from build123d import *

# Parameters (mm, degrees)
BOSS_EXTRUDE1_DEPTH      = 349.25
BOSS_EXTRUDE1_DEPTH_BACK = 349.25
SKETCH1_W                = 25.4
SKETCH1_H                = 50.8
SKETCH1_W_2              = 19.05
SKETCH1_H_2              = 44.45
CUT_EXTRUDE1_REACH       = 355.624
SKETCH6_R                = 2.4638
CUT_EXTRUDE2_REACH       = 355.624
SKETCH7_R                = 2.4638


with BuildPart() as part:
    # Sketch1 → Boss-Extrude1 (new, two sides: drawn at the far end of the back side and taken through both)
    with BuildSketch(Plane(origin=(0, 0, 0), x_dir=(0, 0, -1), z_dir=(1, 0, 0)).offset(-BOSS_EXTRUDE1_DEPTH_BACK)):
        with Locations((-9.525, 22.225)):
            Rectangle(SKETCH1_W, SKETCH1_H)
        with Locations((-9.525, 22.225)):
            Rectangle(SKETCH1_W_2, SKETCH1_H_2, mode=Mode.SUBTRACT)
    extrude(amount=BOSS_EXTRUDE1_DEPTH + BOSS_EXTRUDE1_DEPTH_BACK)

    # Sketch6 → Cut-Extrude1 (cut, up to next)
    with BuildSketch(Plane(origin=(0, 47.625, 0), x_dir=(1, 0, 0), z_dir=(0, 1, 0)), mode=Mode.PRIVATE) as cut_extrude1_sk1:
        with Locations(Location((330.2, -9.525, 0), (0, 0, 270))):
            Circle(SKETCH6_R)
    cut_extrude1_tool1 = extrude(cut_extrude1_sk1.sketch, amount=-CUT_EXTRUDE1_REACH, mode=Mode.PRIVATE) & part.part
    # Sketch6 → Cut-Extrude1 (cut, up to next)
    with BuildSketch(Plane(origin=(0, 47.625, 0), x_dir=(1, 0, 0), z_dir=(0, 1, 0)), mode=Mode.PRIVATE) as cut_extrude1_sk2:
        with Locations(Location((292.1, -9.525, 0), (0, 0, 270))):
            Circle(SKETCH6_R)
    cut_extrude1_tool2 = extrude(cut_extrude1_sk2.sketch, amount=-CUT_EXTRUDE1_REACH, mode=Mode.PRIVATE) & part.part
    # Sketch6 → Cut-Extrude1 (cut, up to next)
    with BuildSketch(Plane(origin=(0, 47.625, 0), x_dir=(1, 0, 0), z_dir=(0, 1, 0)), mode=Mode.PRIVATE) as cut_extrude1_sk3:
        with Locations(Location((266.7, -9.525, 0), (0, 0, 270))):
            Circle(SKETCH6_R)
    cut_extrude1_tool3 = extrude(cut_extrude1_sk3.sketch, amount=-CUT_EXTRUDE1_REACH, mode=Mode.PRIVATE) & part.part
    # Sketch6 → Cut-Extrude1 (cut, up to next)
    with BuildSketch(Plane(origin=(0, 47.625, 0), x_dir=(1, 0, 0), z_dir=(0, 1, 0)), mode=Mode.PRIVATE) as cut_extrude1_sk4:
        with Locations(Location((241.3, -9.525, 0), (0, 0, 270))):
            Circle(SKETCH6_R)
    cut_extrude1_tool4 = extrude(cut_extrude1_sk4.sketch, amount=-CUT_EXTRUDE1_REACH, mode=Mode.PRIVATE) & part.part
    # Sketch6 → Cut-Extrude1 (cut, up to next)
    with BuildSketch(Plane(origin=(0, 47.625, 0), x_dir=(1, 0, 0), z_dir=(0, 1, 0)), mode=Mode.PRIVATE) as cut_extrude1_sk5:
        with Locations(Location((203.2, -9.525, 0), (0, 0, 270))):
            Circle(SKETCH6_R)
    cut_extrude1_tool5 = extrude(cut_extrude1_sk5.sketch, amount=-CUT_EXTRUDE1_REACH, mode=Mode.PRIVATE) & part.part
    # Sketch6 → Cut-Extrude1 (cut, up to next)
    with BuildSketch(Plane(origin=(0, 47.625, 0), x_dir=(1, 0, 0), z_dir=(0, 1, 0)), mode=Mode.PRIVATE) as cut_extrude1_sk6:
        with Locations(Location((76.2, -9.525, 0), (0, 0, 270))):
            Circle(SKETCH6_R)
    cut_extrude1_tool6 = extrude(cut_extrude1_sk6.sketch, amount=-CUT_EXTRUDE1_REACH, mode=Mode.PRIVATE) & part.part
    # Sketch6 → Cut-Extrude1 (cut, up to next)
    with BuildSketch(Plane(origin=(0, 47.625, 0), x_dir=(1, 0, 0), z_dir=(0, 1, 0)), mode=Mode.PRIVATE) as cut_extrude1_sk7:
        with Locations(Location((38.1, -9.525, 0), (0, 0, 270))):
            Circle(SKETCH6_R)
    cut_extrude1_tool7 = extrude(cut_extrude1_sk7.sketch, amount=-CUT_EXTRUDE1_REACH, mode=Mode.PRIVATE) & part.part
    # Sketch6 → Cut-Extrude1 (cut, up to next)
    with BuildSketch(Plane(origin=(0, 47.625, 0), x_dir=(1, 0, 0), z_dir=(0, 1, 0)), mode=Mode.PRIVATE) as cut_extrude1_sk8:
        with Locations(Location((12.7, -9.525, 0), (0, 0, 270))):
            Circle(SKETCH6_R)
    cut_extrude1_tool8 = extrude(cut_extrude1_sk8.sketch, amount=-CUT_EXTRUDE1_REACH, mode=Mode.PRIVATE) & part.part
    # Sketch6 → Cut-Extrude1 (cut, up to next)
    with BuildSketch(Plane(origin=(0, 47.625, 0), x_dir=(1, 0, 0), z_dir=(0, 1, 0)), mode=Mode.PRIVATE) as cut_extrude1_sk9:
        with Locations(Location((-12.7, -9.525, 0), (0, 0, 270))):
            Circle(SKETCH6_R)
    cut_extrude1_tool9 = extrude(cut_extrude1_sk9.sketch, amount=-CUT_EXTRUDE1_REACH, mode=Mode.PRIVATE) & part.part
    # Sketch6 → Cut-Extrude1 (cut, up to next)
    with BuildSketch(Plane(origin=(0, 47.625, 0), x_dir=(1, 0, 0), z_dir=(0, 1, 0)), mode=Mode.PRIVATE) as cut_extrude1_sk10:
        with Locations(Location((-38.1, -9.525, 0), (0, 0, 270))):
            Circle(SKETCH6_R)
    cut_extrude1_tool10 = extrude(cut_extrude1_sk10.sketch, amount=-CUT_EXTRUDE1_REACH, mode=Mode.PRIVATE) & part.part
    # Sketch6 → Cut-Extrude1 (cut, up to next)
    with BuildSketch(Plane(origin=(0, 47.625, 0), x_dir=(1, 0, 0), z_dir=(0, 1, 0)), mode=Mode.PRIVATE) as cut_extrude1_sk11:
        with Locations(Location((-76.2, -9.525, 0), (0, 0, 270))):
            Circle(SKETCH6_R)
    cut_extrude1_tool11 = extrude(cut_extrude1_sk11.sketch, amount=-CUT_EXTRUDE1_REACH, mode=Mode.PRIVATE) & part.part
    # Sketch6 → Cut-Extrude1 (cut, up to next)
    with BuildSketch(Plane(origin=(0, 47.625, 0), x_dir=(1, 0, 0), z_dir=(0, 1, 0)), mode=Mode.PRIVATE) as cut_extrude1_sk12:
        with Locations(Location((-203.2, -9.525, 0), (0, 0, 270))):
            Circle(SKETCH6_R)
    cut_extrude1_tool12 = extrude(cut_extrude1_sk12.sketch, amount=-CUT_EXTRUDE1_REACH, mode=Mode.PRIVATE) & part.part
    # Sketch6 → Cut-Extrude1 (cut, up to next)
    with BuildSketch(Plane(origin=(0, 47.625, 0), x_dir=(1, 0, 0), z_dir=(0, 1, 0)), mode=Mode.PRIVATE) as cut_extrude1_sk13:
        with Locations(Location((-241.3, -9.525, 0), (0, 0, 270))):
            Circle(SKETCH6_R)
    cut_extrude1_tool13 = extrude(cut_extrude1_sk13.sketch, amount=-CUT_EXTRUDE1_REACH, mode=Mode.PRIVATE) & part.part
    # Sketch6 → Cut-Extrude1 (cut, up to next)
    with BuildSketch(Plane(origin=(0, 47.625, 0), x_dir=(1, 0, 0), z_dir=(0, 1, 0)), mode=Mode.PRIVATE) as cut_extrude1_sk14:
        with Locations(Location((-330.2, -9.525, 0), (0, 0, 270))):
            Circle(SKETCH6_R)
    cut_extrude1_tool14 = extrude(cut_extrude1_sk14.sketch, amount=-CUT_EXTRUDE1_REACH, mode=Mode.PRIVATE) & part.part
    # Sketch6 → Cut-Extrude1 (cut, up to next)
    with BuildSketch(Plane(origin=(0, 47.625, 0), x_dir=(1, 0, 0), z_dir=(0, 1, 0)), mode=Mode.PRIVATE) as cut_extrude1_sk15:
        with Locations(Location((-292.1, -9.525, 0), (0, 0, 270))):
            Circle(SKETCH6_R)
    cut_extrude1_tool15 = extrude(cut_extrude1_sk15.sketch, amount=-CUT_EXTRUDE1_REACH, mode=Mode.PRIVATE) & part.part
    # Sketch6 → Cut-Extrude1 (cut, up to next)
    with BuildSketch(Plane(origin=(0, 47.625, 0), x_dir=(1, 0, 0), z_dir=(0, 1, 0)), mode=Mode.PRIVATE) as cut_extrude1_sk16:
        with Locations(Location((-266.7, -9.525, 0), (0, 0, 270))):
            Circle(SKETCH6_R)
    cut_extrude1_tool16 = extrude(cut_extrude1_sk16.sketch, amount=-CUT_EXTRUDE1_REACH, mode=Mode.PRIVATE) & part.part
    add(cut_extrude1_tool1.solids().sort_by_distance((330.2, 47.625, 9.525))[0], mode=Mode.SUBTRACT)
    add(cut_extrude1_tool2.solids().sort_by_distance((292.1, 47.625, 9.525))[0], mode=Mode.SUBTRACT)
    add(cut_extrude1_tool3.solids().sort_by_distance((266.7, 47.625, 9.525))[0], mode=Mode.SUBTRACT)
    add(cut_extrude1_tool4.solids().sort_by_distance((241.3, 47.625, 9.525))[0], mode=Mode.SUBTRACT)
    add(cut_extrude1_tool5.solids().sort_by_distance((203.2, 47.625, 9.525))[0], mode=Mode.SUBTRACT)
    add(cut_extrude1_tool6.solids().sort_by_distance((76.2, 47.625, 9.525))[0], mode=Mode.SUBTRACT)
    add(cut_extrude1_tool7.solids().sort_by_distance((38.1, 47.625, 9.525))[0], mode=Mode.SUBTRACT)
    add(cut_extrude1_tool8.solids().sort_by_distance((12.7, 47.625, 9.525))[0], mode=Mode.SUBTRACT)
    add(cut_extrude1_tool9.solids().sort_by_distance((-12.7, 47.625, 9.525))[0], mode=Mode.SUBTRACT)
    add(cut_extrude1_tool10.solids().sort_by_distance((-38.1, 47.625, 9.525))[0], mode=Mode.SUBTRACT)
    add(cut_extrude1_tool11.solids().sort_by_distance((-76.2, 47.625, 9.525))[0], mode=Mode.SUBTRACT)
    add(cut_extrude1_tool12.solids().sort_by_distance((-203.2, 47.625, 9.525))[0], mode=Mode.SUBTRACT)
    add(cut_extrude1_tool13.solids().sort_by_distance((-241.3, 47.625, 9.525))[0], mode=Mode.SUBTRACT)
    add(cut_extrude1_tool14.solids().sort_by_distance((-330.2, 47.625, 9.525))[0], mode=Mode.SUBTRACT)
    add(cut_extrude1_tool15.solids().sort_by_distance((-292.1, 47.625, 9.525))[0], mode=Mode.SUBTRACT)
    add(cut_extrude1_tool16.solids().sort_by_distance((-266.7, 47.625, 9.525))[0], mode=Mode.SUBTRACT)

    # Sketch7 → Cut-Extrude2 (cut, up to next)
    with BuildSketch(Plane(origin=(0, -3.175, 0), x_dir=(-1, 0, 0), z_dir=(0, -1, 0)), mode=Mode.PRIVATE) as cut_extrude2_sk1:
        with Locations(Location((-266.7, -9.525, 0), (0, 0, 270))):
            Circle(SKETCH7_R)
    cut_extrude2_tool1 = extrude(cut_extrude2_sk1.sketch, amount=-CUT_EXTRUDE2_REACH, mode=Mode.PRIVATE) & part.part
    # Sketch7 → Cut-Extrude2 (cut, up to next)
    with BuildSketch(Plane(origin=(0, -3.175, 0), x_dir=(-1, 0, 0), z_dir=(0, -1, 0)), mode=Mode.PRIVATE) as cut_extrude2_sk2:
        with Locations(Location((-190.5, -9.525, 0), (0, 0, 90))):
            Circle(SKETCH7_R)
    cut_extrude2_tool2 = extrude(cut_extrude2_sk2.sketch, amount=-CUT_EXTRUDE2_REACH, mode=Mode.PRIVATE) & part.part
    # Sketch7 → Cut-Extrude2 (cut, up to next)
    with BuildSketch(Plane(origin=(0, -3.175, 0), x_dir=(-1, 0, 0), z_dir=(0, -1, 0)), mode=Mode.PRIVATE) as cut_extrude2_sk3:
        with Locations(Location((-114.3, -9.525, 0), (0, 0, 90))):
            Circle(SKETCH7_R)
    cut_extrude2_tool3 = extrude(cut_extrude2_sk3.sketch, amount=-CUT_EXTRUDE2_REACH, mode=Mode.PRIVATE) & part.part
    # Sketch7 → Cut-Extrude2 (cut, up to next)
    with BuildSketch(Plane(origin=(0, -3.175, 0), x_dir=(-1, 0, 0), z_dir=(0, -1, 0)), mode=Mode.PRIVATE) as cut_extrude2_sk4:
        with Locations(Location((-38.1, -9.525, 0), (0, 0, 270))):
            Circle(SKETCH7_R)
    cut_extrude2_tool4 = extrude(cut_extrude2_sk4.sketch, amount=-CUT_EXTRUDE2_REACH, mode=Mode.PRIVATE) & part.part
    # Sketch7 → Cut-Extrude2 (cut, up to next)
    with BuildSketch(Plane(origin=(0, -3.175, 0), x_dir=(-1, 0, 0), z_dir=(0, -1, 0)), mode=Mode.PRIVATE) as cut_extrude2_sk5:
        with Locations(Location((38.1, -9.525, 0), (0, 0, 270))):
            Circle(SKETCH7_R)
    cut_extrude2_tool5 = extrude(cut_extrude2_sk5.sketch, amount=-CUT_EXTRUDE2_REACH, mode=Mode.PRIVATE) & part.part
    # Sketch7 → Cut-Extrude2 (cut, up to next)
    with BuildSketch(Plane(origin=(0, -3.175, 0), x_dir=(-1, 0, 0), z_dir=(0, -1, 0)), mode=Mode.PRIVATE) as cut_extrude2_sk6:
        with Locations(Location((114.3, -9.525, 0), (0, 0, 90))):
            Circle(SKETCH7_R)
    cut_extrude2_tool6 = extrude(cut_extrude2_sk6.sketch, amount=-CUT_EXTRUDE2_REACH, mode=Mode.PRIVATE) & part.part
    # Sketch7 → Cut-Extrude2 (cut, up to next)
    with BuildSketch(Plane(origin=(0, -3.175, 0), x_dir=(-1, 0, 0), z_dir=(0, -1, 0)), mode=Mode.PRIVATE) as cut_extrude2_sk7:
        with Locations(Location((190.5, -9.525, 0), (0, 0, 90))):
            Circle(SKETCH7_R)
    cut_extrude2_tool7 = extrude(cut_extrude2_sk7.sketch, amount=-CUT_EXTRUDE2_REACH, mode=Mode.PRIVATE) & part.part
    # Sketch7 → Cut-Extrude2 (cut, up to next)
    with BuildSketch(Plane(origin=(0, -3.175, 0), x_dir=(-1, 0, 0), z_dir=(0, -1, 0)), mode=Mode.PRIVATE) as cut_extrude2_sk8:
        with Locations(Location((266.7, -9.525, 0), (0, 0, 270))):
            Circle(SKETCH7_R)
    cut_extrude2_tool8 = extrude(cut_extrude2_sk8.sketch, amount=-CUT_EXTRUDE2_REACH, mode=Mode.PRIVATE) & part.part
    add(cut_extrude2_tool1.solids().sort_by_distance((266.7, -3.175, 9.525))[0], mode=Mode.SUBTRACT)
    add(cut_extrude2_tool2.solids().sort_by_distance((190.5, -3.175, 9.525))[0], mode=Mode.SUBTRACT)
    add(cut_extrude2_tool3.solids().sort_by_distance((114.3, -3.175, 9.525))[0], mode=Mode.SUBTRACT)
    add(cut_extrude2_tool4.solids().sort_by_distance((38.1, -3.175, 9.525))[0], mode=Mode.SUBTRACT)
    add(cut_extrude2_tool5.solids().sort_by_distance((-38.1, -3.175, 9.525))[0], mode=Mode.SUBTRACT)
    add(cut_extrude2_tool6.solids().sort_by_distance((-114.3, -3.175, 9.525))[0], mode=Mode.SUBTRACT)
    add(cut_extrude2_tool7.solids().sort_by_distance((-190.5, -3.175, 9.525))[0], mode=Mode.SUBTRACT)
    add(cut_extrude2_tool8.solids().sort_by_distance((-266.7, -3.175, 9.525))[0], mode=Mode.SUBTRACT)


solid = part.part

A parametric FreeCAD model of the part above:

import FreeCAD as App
import Part
import Sketcher
from FreeCAD import Vector
Q = App.Units.Quantity

doc = App.newDocument("Part")
body = doc.addObject("PartDesign::Body", "Body")

sketch1 = doc.addObject("Sketcher::SketchObject", "Sketch")
body.addObject(sketch1)
sketch1.AttachmentSupport = (doc.YZ_Plane, [""])
sketch1.MapMode = "FlatFace"
sketch1.addGeometry([
    Part.LineSegment(Vector(47.625, 22.225, 0), Vector(-3.175, 22.225, 0)),
    Part.LineSegment(Vector(-3.175, 22.225, 0), Vector(-3.175, -3.175, 0)),
    Part.LineSegment(Vector(-3.175, -3.175, 0), Vector(47.625, -3.175, 0)),
    Part.LineSegment(Vector(47.625, -3.175, 0), Vector(47.625, 22.225, 0)),
    Part.LineSegment(Vector(0, 0, 0), Vector(0, 19.05, 0)),
    Part.LineSegment(Vector(0, 19.05, 0), Vector(44.45, 19.05, 0)),
    Part.LineSegment(Vector(44.45, 19.05, 0), Vector(44.45, 0, 0)),
    Part.LineSegment(Vector(44.45, 0, 0), Vector(0, 0, 0)),
], False)
sketch1.addConstraint([
    Sketcher.Constraint("Coincident", 0, 2, 1, 1),
    Sketcher.Constraint("Coincident", 1, 2, 2, 1),
    Sketcher.Constraint("Coincident", 2, 2, 3, 1),
    Sketcher.Constraint("Coincident", 3, 2, 0, 1),
    Sketcher.Constraint("Coincident", 4, 2, 5, 1),
    Sketcher.Constraint("Coincident", 5, 2, 6, 1),
    Sketcher.Constraint("Coincident", 6, 2, 7, 1),
    Sketcher.Constraint("Coincident", 7, 2, 4, 1),
    Sketcher.Constraint("Horizontal", 0),
    Sketcher.Constraint("Vertical", 1),
    Sketcher.Constraint("Horizontal", 2),
    Sketcher.Constraint("Vertical", 3),
    Sketcher.Constraint("Vertical", 4),
    Sketcher.Constraint("Horizontal", 5),
    Sketcher.Constraint("Vertical", 6),
    Sketcher.Constraint("Horizontal", 7),
    Sketcher.Constraint("Coincident", 7, 2, -1, 1),
    Sketcher.Constraint("DistanceX", 0, 2, 0, 1, Q("2 in")),
    Sketcher.Constraint("DistanceY", 1, 2, 1, 1, Q("1 in")),
    Sketcher.Constraint("DistanceX", 5, 1, 5, 2, Q("1.75 in")),
    Sketcher.Constraint("DistanceY", 4, 1, 4, 2, Q("0.75 in")),
    Sketcher.Constraint("DistanceX", 0, 2, -1, 1, Q("0.125 in")),
    Sketcher.Constraint("DistanceY", -1, 1, 0, 2, Q("0.875 in")),
])
pad1 = doc.addObject("PartDesign::Pad", "Pad")
body.addObject(pad1)
pad1.Profile = sketch1
pad1.Type = "TwoLengths"
pad1.Length = Q("13.75 in")
pad1.Length2 = Q("13.75 in")

sketch2 = doc.addObject("Sketcher::SketchObject", "Sketch001")
body.addObject(sketch2)
sketch2.AttachmentSupport = (doc.XZ_Plane, [""])
sketch2.MapMode = "FlatFace"
sketch2.AttachmentOffset = App.Placement(Vector(0, 0, -1.875 * 25.4), App.Rotation())
sketch2.addGeometry(Part.Circle(Vector(330.2, 9.525, 0), Vector(0, 0, 1), 2.4638), False)
sketch2.addConstraint([
    Sketcher.Constraint("Diameter", 0, Q("0.194 in")),
    Sketcher.Constraint("DistanceX", -1, 1, 0, 3, Q("13 in")),
    Sketcher.Constraint("DistanceY", -1, 1, 0, 3, Q("0.375 in")),
])
pocket1 = doc.addObject("PartDesign::Pocket", "Pocket")
body.addObject(pocket1)
pocket1.Profile = sketch2
pocket1.Type = "UpToFirst"
pocket1.Reversed = True

sketch3 = doc.addObject("Sketcher::SketchObject", "Sketch002")
body.addObject(sketch3)
sketch3.AttachmentSupport = (doc.XZ_Plane, [""])
sketch3.MapMode = "FlatFace"
sketch3.AttachmentOffset = App.Placement(Vector(0, 0, -1.875 * 25.4), App.Rotation())
sketch3.addGeometry(Part.Circle(Vector(292.1, 9.525, 0), Vector(0, 0, 1), 2.4638), False)
sketch3.addConstraint([
    Sketcher.Constraint("Diameter", 0, Q("0.194 in")),
    Sketcher.Constraint("DistanceX", -1, 1, 0, 3, Q("11.5 in")),
    Sketcher.Constraint("DistanceY", -1, 1, 0, 3, Q("0.375 in")),
])
pocket2 = doc.addObject("PartDesign::Pocket", "Pocket001")
body.addObject(pocket2)
pocket2.Profile = sketch3
pocket2.Type = "UpToFirst"
pocket2.Reversed = True

sketch4 = doc.addObject("Sketcher::SketchObject", "Sketch003")
body.addObject(sketch4)
sketch4.AttachmentSupport = (doc.XZ_Plane, [""])
sketch4.MapMode = "FlatFace"
sketch4.AttachmentOffset = App.Placement(Vector(0, 0, -1.875 * 25.4), App.Rotation())
sketch4.addGeometry(Part.Circle(Vector(266.7, 9.525, 0), Vector(0, 0, 1), 2.4638), False)
sketch4.addConstraint([
    Sketcher.Constraint("Diameter", 0, Q("0.194 in")),
    Sketcher.Constraint("DistanceX", -1, 1, 0, 3, Q("10.5 in")),
    Sketcher.Constraint("DistanceY", -1, 1, 0, 3, Q("0.375 in")),
])
pocket3 = doc.addObject("PartDesign::Pocket", "Pocket002")
body.addObject(pocket3)
pocket3.Profile = sketch4
pocket3.Type = "UpToFirst"
pocket3.Reversed = True

sketch5 = doc.addObject("Sketcher::SketchObject", "Sketch004")
body.addObject(sketch5)
sketch5.AttachmentSupport = (doc.XZ_Plane, [""])
sketch5.MapMode = "FlatFace"
sketch5.AttachmentOffset = App.Placement(Vector(0, 0, -1.875 * 25.4), App.Rotation())
sketch5.addGeometry(Part.Circle(Vector(241.3, 9.525, 0), Vector(0, 0, 1), 2.4638), False)
sketch5.addConstraint([
    Sketcher.Constraint("Diameter", 0, Q("0.194 in")),
    Sketcher.Constraint("DistanceX", -1, 1, 0, 3, Q("9.5 in")),
    Sketcher.Constraint("DistanceY", -1, 1, 0, 3, Q("0.375 in")),
])
pocket4 = doc.addObject("PartDesign::Pocket", "Pocket003")
body.addObject(pocket4)
pocket4.Profile = sketch5
pocket4.Type = "UpToFirst"
pocket4.Reversed = True

sketch6 = doc.addObject("Sketcher::SketchObject", "Sketch005")
body.addObject(sketch6)
sketch6.AttachmentSupport = (doc.XZ_Plane, [""])
sketch6.MapMode = "FlatFace"
sketch6.AttachmentOffset = App.Placement(Vector(0, 0, -1.875 * 25.4), App.Rotation())
sketch6.addGeometry(Part.Circle(Vector(203.2, 9.525, 0), Vector(0, 0, 1), 2.4638), False)
sketch6.addConstraint([
    Sketcher.Constraint("Diameter", 0, Q("0.194 in")),
    Sketcher.Constraint("DistanceX", -1, 1, 0, 3, Q("8 in")),
    Sketcher.Constraint("DistanceY", -1, 1, 0, 3, Q("0.375 in")),
])
pocket5 = doc.addObject("PartDesign::Pocket", "Pocket004")
body.addObject(pocket5)
pocket5.Profile = sketch6
pocket5.Type = "UpToFirst"
pocket5.Reversed = True

sketch7 = doc.addObject("Sketcher::SketchObject", "Sketch006")
body.addObject(sketch7)
sketch7.AttachmentSupport = (doc.XZ_Plane, [""])
sketch7.MapMode = "FlatFace"
sketch7.AttachmentOffset = App.Placement(Vector(0, 0, -1.875 * 25.4), App.Rotation())
sketch7.addGeometry(Part.Circle(Vector(76.2, 9.525, 0), Vector(0, 0, 1), 2.4638), False)
sketch7.addConstraint([
    Sketcher.Constraint("Diameter", 0, Q("0.194 in")),
    Sketcher.Constraint("DistanceX", -1, 1, 0, 3, Q("3 in")),
    Sketcher.Constraint("DistanceY", -1, 1, 0, 3, Q("0.375 in")),
])
pocket6 = doc.addObject("PartDesign::Pocket", "Pocket005")
body.addObject(pocket6)
pocket6.Profile = sketch7
pocket6.Type = "UpToFirst"
pocket6.Reversed = True

sketch8 = doc.addObject("Sketcher::SketchObject", "Sketch007")
body.addObject(sketch8)
sketch8.AttachmentSupport = (doc.XZ_Plane, [""])
sketch8.MapMode = "FlatFace"
sketch8.AttachmentOffset = App.Placement(Vector(0, 0, -1.875 * 25.4), App.Rotation())
sketch8.addGeometry(Part.Circle(Vector(38.1, 9.525, 0), Vector(0, 0, 1), 2.4638), False)
sketch8.addConstraint([
    Sketcher.Constraint("Diameter", 0, Q("0.194 in")),
    Sketcher.Constraint("DistanceX", -1, 1, 0, 3, Q("1.5 in")),
    Sketcher.Constraint("DistanceY", -1, 1, 0, 3, Q("0.375 in")),
])
pocket7 = doc.addObject("PartDesign::Pocket", "Pocket006")
body.addObject(pocket7)
pocket7.Profile = sketch8
pocket7.Type = "UpToFirst"
pocket7.Reversed = True

sketch9 = doc.addObject("Sketcher::SketchObject", "Sketch008")
body.addObject(sketch9)
sketch9.AttachmentSupport = (doc.XZ_Plane, [""])
sketch9.MapMode = "FlatFace"
sketch9.AttachmentOffset = App.Placement(Vector(0, 0, -1.875 * 25.4), App.Rotation())
sketch9.addGeometry(Part.Circle(Vector(12.7, 9.525, 0), Vector(0, 0, 1), 2.4638), False)
sketch9.addConstraint([
    Sketcher.Constraint("Diameter", 0, Q("0.194 in")),
    Sketcher.Constraint("DistanceX", -1, 1, 0, 3, Q("0.5 in")),
    Sketcher.Constraint("DistanceY", -1, 1, 0, 3, Q("0.375 in")),
])
pocket8 = doc.addObject("PartDesign::Pocket", "Pocket007")
body.addObject(pocket8)
pocket8.Profile = sketch9
pocket8.Type = "UpToFirst"
pocket8.Reversed = True

sketch10 = doc.addObject("Sketcher::SketchObject", "Sketch009")
body.addObject(sketch10)
sketch10.AttachmentSupport = (doc.XZ_Plane, [""])
sketch10.MapMode = "FlatFace"
sketch10.AttachmentOffset = App.Placement(Vector(0, 0, -1.875 * 25.4), App.Rotation())
sketch10.addGeometry(Part.Circle(Vector(-12.7, 9.525, 0), Vector(0, 0, 1), 2.4638), False)
sketch10.addConstraint([
    Sketcher.Constraint("Diameter", 0, Q("0.194 in")),
    Sketcher.Constraint("DistanceX", 0, 3, -1, 1, Q("0.5 in")),
    Sketcher.Constraint("DistanceY", -1, 1, 0, 3, Q("0.375 in")),
])
pocket9 = doc.addObject("PartDesign::Pocket", "Pocket008")
body.addObject(pocket9)
pocket9.Profile = sketch10
pocket9.Type = "UpToFirst"
pocket9.Reversed = True

sketch11 = doc.addObject("Sketcher::SketchObject", "Sketch010")
body.addObject(sketch11)
sketch11.AttachmentSupport = (doc.XZ_Plane, [""])
sketch11.MapMode = "FlatFace"
sketch11.AttachmentOffset = App.Placement(Vector(0, 0, -1.875 * 25.4), App.Rotation())
sketch11.addGeometry(Part.Circle(Vector(-38.1, 9.525, 0), Vector(0, 0, 1), 2.4638), False)
sketch11.addConstraint([
    Sketcher.Constraint("Diameter", 0, Q("0.194 in")),
    Sketcher.Constraint("DistanceX", 0, 3, -1, 1, Q("1.5 in")),
    Sketcher.Constraint("DistanceY", -1, 1, 0, 3, Q("0.375 in")),
])
pocket10 = doc.addObject("PartDesign::Pocket", "Pocket009")
body.addObject(pocket10)
pocket10.Profile = sketch11
pocket10.Type = "UpToFirst"
pocket10.Reversed = True

sketch12 = doc.addObject("Sketcher::SketchObject", "Sketch011")
body.addObject(sketch12)
sketch12.AttachmentSupport = (doc.XZ_Plane, [""])
sketch12.MapMode = "FlatFace"
sketch12.AttachmentOffset = App.Placement(Vector(0, 0, -1.875 * 25.4), App.Rotation())
sketch12.addGeometry(Part.Circle(Vector(-76.2, 9.525, 0), Vector(0, 0, 1), 2.4638), False)
sketch12.addConstraint([
    Sketcher.Constraint("Diameter", 0, Q("0.194 in")),
    Sketcher.Constraint("DistanceX", 0, 3, -1, 1, Q("3 in")),
    Sketcher.Constraint("DistanceY", -1, 1, 0, 3, Q("0.375 in")),
])
pocket11 = doc.addObject("PartDesign::Pocket", "Pocket010")
body.addObject(pocket11)
pocket11.Profile = sketch12
pocket11.Type = "UpToFirst"
pocket11.Reversed = True

sketch13 = doc.addObject("Sketcher::SketchObject", "Sketch012")
body.addObject(sketch13)
sketch13.AttachmentSupport = (doc.XZ_Plane, [""])
sketch13.MapMode = "FlatFace"
sketch13.AttachmentOffset = App.Placement(Vector(0, 0, -1.875 * 25.4), App.Rotation())
sketch13.addGeometry(Part.Circle(Vector(-203.2, 9.525, 0), Vector(0, 0, 1), 2.4638), False)
sketch13.addConstraint([
    Sketcher.Constraint("Diameter", 0, Q("0.194 in")),
    Sketcher.Constraint("DistanceX", 0, 3, -1, 1, Q("8 in")),
    Sketcher.Constraint("DistanceY", -1, 1, 0, 3, Q("0.375 in")),
])
pocket12 = doc.addObject("PartDesign::Pocket", "Pocket011")
body.addObject(pocket12)
pocket12.Profile = sketch13
pocket12.Type = "UpToFirst"
pocket12.Reversed = True

sketch14 = doc.addObject("Sketcher::SketchObject", "Sketch013")
body.addObject(sketch14)
sketch14.AttachmentSupport = (doc.XZ_Plane, [""])
sketch14.MapMode = "FlatFace"
sketch14.AttachmentOffset = App.Placement(Vector(0, 0, -1.875 * 25.4), App.Rotation())
sketch14.addGeometry(Part.Circle(Vector(-241.3, 9.525, 0), Vector(0, 0, 1), 2.4638), False)
sketch14.addConstraint([
    Sketcher.Constraint("Diameter", 0, Q("0.194 in")),
    Sketcher.Constraint("DistanceX", 0, 3, -1, 1, Q("9.5 in")),
    Sketcher.Constraint("DistanceY", -1, 1, 0, 3, Q("0.375 in")),
])
pocket13 = doc.addObject("PartDesign::Pocket", "Pocket012")
body.addObject(pocket13)
pocket13.Profile = sketch14
pocket13.Type = "UpToFirst"
pocket13.Reversed = True

sketch15 = doc.addObject("Sketcher::SketchObject", "Sketch014")
body.addObject(sketch15)
sketch15.AttachmentSupport = (doc.XZ_Plane, [""])
sketch15.MapMode = "FlatFace"
sketch15.AttachmentOffset = App.Placement(Vector(0, 0, -1.875 * 25.4), App.Rotation())
sketch15.addGeometry(Part.Circle(Vector(-330.2, 9.525, 0), Vector(0, 0, 1), 2.4638), False)
sketch15.addConstraint([
    Sketcher.Constraint("Diameter", 0, Q("0.194 in")),
    Sketcher.Constraint("DistanceX", 0, 3, -1, 1, Q("13 in")),
    Sketcher.Constraint("DistanceY", -1, 1, 0, 3, Q("0.375 in")),
])
pocket14 = doc.addObject("PartDesign::Pocket", "Pocket013")
body.addObject(pocket14)
pocket14.Profile = sketch15
pocket14.Type = "UpToFirst"
pocket14.Reversed = True

sketch16 = doc.addObject("Sketcher::SketchObject", "Sketch015")
body.addObject(sketch16)
sketch16.AttachmentSupport = (doc.XZ_Plane, [""])
sketch16.MapMode = "FlatFace"
sketch16.AttachmentOffset = App.Placement(Vector(0, 0, -1.875 * 25.4), App.Rotation())
sketch16.addGeometry(Part.Circle(Vector(-292.1, 9.525, 0), Vector(0, 0, 1), 2.4638), False)
sketch16.addConstraint([
    Sketcher.Constraint("Diameter", 0, Q("0.194 in")),
    Sketcher.Constraint("DistanceX", 0, 3, -1, 1, Q("11.5 in")),
    Sketcher.Constraint("DistanceY", -1, 1, 0, 3, Q("0.375 in")),
])
pocket15 = doc.addObject("PartDesign::Pocket", "Pocket014")
body.addObject(pocket15)
pocket15.Profile = sketch16
pocket15.Type = "UpToFirst"
pocket15.Reversed = True

sketch17 = doc.addObject("Sketcher::SketchObject", "Sketch016")
body.addObject(sketch17)
sketch17.AttachmentSupport = (doc.XZ_Plane, [""])
sketch17.MapMode = "FlatFace"
sketch17.AttachmentOffset = App.Placement(Vector(0, 0, -1.875 * 25.4), App.Rotation())
sketch17.addGeometry(Part.Circle(Vector(-266.7, 9.525, 0), Vector(0, 0, 1), 2.4638), False)
sketch17.addConstraint([
    Sketcher.Constraint("Diameter", 0, Q("0.194 in")),
    Sketcher.Constraint("DistanceX", 0, 3, -1, 1, Q("10.5 in")),
    Sketcher.Constraint("DistanceY", -1, 1, 0, 3, Q("0.375 in")),
])
pocket16 = doc.addObject("PartDesign::Pocket", "Pocket015")
body.addObject(pocket16)
pocket16.Profile = sketch17
pocket16.Type = "UpToFirst"
pocket16.Reversed = True

sketch18 = doc.addObject("Sketcher::SketchObject", "Sketch017")
body.addObject(sketch18)
sketch18.AttachmentSupport = (doc.XZ_Plane, [""])
sketch18.MapMode = "FlatFace"
sketch18.AttachmentOffset = App.Placement(Vector(0, 0, 0.125 * 25.4), App.Rotation())
sketch18.addGeometry(Part.Circle(Vector(266.7, 9.525, 0), Vector(0, 0, 1), 2.4638), False)
sketch18.addConstraint([
    Sketcher.Constraint("Diameter", 0, Q("0.194 in")),
    Sketcher.Constraint("DistanceX", -1, 1, 0, 3, Q("10.5 in")),
    Sketcher.Constraint("DistanceY", -1, 1, 0, 3, Q("0.375 in")),
])
pocket17 = doc.addObject("PartDesign::Pocket", "Pocket016")
body.addObject(pocket17)
pocket17.Profile = sketch18
pocket17.Type = "UpToFirst"

sketch19 = doc.addObject("Sketcher::SketchObject", "Sketch018")
body.addObject(sketch19)
sketch19.AttachmentSupport = (doc.XZ_Plane, [""])
sketch19.MapMode = "FlatFace"
sketch19.AttachmentOffset = App.Placement(Vector(0, 0, 0.125 * 25.4), App.Rotation())
sketch19.addGeometry(Part.Circle(Vector(190.5, 9.525, 0), Vector(0, 0, 1), 2.4638), False)
sketch19.addConstraint([
    Sketcher.Constraint("Diameter", 0, Q("0.194 in")),
    Sketcher.Constraint("DistanceX", -1, 1, 0, 3, Q("7.5 in")),
    Sketcher.Constraint("DistanceY", -1, 1, 0, 3, Q("0.375 in")),
])
pocket18 = doc.addObject("PartDesign::Pocket", "Pocket017")
body.addObject(pocket18)
pocket18.Profile = sketch19
pocket18.Type = "UpToFirst"

sketch20 = doc.addObject("Sketcher::SketchObject", "Sketch019")
body.addObject(sketch20)
sketch20.AttachmentSupport = (doc.XZ_Plane, [""])
sketch20.MapMode = "FlatFace"
sketch20.AttachmentOffset = App.Placement(Vector(0, 0, 0.125 * 25.4), App.Rotation())
sketch20.addGeometry(Part.Circle(Vector(114.3, 9.525, 0), Vector(0, 0, 1), 2.4638), False)
sketch20.addConstraint([
    Sketcher.Constraint("Diameter", 0, Q("0.194 in")),
    Sketcher.Constraint("DistanceX", -1, 1, 0, 3, Q("4.5 in")),
    Sketcher.Constraint("DistanceY", -1, 1, 0, 3, Q("0.375 in")),
])
pocket19 = doc.addObject("PartDesign::Pocket", "Pocket018")
body.addObject(pocket19)
pocket19.Profile = sketch20
pocket19.Type = "UpToFirst"

sketch21 = doc.addObject("Sketcher::SketchObject", "Sketch020")
body.addObject(sketch21)
sketch21.AttachmentSupport = (doc.XZ_Plane, [""])
sketch21.MapMode = "FlatFace"
sketch21.AttachmentOffset = App.Placement(Vector(0, 0, 0.125 * 25.4), App.Rotation())
sketch21.addGeometry(Part.Circle(Vector(38.1, 9.525, 0), Vector(0, 0, 1), 2.4638), False)
sketch21.addConstraint([
    Sketcher.Constraint("Diameter", 0, Q("0.194 in")),
    Sketcher.Constraint("DistanceX", -1, 1, 0, 3, Q("1.5 in")),
    Sketcher.Constraint("DistanceY", -1, 1, 0, 3, Q("0.375 in")),
])
pocket20 = doc.addObject("PartDesign::Pocket", "Pocket019")
body.addObject(pocket20)
pocket20.Profile = sketch21
pocket20.Type = "UpToFirst"

sketch22 = doc.addObject("Sketcher::SketchObject", "Sketch021")
body.addObject(sketch22)
sketch22.AttachmentSupport = (doc.XZ_Plane, [""])
sketch22.MapMode = "FlatFace"
sketch22.AttachmentOffset = App.Placement(Vector(0, 0, 0.125 * 25.4), App.Rotation())
sketch22.addGeometry(Part.Circle(Vector(-38.1, 9.525, 0), Vector(0, 0, 1), 2.4638), False)
sketch22.addConstraint([
    Sketcher.Constraint("Diameter", 0, Q("0.194 in")),
    Sketcher.Constraint("DistanceX", 0, 3, -1, 1, Q("1.5 in")),
    Sketcher.Constraint("DistanceY", -1, 1, 0, 3, Q("0.375 in")),
])
pocket21 = doc.addObject("PartDesign::Pocket", "Pocket020")
body.addObject(pocket21)
pocket21.Profile = sketch22
pocket21.Type = "UpToFirst"

sketch23 = doc.addObject("Sketcher::SketchObject", "Sketch022")
body.addObject(sketch23)
sketch23.AttachmentSupport = (doc.XZ_Plane, [""])
sketch23.MapMode = "FlatFace"
sketch23.AttachmentOffset = App.Placement(Vector(0, 0, 0.125 * 25.4), App.Rotation())
sketch23.addGeometry(Part.Circle(Vector(-114.3, 9.525, 0), Vector(0, 0, 1), 2.4638), False)
sketch23.addConstraint([
    Sketcher.Constraint("Diameter", 0, Q("0.194 in")),
    Sketcher.Constraint("DistanceX", 0, 3, -1, 1, Q("4.5 in")),
    Sketcher.Constraint("DistanceY", -1, 1, 0, 3, Q("0.375 in")),
])
pocket22 = doc.addObject("PartDesign::Pocket", "Pocket021")
body.addObject(pocket22)
pocket22.Profile = sketch23
pocket22.Type = "UpToFirst"

sketch24 = doc.addObject("Sketcher::SketchObject", "Sketch023")
body.addObject(sketch24)
sketch24.AttachmentSupport = (doc.XZ_Plane, [""])
sketch24.MapMode = "FlatFace"
sketch24.AttachmentOffset = App.Placement(Vector(0, 0, 0.125 * 25.4), App.Rotation())
sketch24.addGeometry(Part.Circle(Vector(-190.5, 9.525, 0), Vector(0, 0, 1), 2.4638), False)
sketch24.addConstraint([
    Sketcher.Constraint("Diameter", 0, Q("0.194 in")),
    Sketcher.Constraint("DistanceX", 0, 3, -1, 1, Q("7.5 in")),
    Sketcher.Constraint("DistanceY", -1, 1, 0, 3, Q("0.375 in")),
])
pocket23 = doc.addObject("PartDesign::Pocket", "Pocket022")
body.addObject(pocket23)
pocket23.Profile = sketch24
pocket23.Type = "UpToFirst"

sketch25 = doc.addObject("Sketcher::SketchObject", "Sketch024")
body.addObject(sketch25)
sketch25.AttachmentSupport = (doc.XZ_Plane, [""])
sketch25.MapMode = "FlatFace"
sketch25.AttachmentOffset = App.Placement(Vector(0, 0, 0.125 * 25.4), App.Rotation())
sketch25.addGeometry(Part.Circle(Vector(-266.7, 9.525, 0), Vector(0, 0, 1), 2.4638), False)
sketch25.addConstraint([
    Sketcher.Constraint("Diameter", 0, Q("0.194 in")),
    Sketcher.Constraint("DistanceX", 0, 3, -1, 1, Q("10.5 in")),
    Sketcher.Constraint("DistanceY", -1, 1, 0, 3, Q("0.375 in")),
])
pocket24 = doc.addObject("PartDesign::Pocket", "Pocket023")
body.addObject(pocket24)
pocket24.Profile = sketch25
pocket24.Type = "UpToFirst"

doc.recompute()
